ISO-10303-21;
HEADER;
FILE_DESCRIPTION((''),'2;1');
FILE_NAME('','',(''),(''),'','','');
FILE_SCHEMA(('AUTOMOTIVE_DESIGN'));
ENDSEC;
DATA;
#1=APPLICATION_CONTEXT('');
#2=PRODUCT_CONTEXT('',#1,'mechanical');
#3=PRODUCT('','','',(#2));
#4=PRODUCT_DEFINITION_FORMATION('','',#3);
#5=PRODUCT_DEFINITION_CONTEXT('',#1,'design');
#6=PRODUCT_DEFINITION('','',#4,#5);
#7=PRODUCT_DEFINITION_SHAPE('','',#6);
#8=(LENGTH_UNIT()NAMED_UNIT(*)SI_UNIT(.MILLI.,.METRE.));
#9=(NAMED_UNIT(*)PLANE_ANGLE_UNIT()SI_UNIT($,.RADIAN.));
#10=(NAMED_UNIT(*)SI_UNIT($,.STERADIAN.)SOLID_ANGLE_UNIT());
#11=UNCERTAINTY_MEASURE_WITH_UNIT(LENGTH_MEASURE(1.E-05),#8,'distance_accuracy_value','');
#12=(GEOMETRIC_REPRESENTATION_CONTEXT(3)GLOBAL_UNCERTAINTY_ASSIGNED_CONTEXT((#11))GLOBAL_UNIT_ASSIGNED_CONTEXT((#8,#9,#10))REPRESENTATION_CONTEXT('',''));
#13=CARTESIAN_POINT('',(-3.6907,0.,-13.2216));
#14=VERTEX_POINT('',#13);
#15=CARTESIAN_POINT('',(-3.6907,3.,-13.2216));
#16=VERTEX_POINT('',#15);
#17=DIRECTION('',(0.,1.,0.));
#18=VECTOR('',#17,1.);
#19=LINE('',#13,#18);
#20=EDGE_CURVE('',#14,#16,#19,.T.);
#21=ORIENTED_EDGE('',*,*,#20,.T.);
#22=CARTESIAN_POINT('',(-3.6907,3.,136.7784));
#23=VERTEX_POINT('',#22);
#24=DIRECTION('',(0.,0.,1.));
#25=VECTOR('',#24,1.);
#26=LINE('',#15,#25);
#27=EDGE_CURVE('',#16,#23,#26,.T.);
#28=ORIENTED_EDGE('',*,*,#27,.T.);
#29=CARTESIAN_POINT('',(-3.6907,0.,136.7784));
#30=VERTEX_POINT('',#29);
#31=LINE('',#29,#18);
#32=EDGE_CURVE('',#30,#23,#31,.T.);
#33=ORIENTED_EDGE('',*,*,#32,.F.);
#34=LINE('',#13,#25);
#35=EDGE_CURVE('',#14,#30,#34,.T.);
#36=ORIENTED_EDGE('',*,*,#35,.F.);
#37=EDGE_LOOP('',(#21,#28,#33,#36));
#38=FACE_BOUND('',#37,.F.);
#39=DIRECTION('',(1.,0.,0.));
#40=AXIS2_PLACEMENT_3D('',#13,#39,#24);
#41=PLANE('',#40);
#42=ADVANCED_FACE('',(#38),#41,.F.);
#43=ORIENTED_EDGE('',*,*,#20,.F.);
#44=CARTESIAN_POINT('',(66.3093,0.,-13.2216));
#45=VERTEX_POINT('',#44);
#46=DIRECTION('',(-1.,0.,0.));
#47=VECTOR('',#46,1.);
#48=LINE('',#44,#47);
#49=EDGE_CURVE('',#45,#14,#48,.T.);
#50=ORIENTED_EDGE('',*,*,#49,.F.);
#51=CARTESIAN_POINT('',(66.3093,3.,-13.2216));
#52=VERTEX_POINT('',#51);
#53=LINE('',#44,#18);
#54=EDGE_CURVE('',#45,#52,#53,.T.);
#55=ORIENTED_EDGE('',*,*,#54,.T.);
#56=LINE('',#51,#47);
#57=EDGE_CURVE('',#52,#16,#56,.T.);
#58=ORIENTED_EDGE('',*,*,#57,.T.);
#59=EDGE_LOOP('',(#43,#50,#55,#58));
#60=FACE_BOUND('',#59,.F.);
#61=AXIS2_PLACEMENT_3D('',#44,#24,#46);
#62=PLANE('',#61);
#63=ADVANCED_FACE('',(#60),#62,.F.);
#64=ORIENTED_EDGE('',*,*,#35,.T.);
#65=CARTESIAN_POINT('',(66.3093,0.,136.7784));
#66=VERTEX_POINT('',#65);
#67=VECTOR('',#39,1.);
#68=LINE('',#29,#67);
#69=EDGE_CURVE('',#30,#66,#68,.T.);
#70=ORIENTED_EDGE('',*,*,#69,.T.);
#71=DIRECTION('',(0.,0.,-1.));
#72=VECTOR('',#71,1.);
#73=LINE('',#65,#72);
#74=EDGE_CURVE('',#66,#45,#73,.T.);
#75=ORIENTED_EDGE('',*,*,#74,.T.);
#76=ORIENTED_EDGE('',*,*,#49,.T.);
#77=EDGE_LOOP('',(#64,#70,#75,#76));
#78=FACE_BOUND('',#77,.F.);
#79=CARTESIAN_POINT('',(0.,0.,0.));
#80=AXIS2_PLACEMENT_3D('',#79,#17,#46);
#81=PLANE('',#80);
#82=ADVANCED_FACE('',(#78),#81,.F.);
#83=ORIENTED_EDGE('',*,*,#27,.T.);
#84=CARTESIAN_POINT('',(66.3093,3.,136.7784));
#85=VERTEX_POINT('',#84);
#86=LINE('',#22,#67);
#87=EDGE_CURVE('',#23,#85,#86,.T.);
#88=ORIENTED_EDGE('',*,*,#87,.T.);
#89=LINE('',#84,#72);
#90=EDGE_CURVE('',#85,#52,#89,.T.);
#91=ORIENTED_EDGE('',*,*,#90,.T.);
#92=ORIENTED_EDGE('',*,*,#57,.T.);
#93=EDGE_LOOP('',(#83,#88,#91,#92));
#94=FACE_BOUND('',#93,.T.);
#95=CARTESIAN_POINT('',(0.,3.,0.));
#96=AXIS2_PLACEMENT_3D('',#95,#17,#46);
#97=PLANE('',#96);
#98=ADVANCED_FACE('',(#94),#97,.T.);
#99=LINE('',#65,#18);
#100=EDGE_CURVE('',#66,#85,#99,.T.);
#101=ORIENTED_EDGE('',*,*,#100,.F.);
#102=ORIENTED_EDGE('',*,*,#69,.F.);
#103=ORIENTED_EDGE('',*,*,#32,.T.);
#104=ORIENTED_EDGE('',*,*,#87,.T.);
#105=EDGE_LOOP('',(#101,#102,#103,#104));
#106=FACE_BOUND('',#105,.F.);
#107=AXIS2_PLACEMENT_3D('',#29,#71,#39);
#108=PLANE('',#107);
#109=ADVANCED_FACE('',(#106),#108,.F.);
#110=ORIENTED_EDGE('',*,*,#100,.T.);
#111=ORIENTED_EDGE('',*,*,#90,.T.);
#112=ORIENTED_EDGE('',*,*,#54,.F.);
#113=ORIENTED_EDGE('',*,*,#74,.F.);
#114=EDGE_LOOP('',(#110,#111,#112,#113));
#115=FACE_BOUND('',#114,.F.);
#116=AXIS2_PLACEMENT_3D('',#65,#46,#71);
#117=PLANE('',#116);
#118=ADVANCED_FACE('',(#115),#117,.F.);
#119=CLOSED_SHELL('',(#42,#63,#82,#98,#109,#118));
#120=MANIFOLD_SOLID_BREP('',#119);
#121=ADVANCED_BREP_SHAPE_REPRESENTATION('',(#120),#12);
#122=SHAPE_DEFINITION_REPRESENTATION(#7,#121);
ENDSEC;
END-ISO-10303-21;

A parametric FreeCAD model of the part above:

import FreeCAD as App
import Part
import Sketcher

V = App.Vector
Q = App.Units.Quantity


def add_polygon(sketch, points):
    """Adds a closed chain of lines whose ends are joined by coincident constraints."""
    first, n = sketch.GeometryCount, len(points)
    for a, b in zip(points, points[1:] + points[:1]):
        sketch.addGeometry(Part.LineSegment(App.Vector(*a, 0), App.Vector(*b, 0)), False)
    for i in range(n):
        sketch.addConstraint(Sketcher.Constraint("Coincident", first + i, 2, first + (i + 1) % n, 1))

doc = App.newDocument("Part")
body = doc.addObject("PartDesign::Body", "Body")

# Sketch on XZ plane
sketch1 = body.newObject("Sketcher::SketchObject", "Sketch")
sketch1.AttachmentSupport = (doc.getObject("XZ_Plane"), [""])
sketch1.MapMode = "FlatFace"
add_polygon(sketch1, [(-4, -13), (-4, 137), (66, 137), (66, -13)])  # lines 0-3
sketch1.addConstraint([
    Sketcher.Constraint("Vertical", 0),
    Sketcher.Constraint("Horizontal", 1),
    Sketcher.Constraint("Vertical", 2),
    Sketcher.Constraint("Horizontal", 3),
    Sketcher.Constraint("DistanceX", 1, 1, 1, 2, Q("70 mm")),
    Sketcher.Constraint("DistanceY", 0, 1, 0, 2, Q("150 mm")),
    Sketcher.Constraint("DistanceX", 0, 2, -1, 1, Q("3.6907 mm")),
    Sketcher.Constraint("DistanceY", -1, 1, 0, 2, Q("136.7784 mm")),
])
pad1 = body.newObject("PartDesign::Pad", "Pad")
pad1.Profile = sketch1
pad1.Length = 3
pad1.Reversed = True

doc.recompute()
